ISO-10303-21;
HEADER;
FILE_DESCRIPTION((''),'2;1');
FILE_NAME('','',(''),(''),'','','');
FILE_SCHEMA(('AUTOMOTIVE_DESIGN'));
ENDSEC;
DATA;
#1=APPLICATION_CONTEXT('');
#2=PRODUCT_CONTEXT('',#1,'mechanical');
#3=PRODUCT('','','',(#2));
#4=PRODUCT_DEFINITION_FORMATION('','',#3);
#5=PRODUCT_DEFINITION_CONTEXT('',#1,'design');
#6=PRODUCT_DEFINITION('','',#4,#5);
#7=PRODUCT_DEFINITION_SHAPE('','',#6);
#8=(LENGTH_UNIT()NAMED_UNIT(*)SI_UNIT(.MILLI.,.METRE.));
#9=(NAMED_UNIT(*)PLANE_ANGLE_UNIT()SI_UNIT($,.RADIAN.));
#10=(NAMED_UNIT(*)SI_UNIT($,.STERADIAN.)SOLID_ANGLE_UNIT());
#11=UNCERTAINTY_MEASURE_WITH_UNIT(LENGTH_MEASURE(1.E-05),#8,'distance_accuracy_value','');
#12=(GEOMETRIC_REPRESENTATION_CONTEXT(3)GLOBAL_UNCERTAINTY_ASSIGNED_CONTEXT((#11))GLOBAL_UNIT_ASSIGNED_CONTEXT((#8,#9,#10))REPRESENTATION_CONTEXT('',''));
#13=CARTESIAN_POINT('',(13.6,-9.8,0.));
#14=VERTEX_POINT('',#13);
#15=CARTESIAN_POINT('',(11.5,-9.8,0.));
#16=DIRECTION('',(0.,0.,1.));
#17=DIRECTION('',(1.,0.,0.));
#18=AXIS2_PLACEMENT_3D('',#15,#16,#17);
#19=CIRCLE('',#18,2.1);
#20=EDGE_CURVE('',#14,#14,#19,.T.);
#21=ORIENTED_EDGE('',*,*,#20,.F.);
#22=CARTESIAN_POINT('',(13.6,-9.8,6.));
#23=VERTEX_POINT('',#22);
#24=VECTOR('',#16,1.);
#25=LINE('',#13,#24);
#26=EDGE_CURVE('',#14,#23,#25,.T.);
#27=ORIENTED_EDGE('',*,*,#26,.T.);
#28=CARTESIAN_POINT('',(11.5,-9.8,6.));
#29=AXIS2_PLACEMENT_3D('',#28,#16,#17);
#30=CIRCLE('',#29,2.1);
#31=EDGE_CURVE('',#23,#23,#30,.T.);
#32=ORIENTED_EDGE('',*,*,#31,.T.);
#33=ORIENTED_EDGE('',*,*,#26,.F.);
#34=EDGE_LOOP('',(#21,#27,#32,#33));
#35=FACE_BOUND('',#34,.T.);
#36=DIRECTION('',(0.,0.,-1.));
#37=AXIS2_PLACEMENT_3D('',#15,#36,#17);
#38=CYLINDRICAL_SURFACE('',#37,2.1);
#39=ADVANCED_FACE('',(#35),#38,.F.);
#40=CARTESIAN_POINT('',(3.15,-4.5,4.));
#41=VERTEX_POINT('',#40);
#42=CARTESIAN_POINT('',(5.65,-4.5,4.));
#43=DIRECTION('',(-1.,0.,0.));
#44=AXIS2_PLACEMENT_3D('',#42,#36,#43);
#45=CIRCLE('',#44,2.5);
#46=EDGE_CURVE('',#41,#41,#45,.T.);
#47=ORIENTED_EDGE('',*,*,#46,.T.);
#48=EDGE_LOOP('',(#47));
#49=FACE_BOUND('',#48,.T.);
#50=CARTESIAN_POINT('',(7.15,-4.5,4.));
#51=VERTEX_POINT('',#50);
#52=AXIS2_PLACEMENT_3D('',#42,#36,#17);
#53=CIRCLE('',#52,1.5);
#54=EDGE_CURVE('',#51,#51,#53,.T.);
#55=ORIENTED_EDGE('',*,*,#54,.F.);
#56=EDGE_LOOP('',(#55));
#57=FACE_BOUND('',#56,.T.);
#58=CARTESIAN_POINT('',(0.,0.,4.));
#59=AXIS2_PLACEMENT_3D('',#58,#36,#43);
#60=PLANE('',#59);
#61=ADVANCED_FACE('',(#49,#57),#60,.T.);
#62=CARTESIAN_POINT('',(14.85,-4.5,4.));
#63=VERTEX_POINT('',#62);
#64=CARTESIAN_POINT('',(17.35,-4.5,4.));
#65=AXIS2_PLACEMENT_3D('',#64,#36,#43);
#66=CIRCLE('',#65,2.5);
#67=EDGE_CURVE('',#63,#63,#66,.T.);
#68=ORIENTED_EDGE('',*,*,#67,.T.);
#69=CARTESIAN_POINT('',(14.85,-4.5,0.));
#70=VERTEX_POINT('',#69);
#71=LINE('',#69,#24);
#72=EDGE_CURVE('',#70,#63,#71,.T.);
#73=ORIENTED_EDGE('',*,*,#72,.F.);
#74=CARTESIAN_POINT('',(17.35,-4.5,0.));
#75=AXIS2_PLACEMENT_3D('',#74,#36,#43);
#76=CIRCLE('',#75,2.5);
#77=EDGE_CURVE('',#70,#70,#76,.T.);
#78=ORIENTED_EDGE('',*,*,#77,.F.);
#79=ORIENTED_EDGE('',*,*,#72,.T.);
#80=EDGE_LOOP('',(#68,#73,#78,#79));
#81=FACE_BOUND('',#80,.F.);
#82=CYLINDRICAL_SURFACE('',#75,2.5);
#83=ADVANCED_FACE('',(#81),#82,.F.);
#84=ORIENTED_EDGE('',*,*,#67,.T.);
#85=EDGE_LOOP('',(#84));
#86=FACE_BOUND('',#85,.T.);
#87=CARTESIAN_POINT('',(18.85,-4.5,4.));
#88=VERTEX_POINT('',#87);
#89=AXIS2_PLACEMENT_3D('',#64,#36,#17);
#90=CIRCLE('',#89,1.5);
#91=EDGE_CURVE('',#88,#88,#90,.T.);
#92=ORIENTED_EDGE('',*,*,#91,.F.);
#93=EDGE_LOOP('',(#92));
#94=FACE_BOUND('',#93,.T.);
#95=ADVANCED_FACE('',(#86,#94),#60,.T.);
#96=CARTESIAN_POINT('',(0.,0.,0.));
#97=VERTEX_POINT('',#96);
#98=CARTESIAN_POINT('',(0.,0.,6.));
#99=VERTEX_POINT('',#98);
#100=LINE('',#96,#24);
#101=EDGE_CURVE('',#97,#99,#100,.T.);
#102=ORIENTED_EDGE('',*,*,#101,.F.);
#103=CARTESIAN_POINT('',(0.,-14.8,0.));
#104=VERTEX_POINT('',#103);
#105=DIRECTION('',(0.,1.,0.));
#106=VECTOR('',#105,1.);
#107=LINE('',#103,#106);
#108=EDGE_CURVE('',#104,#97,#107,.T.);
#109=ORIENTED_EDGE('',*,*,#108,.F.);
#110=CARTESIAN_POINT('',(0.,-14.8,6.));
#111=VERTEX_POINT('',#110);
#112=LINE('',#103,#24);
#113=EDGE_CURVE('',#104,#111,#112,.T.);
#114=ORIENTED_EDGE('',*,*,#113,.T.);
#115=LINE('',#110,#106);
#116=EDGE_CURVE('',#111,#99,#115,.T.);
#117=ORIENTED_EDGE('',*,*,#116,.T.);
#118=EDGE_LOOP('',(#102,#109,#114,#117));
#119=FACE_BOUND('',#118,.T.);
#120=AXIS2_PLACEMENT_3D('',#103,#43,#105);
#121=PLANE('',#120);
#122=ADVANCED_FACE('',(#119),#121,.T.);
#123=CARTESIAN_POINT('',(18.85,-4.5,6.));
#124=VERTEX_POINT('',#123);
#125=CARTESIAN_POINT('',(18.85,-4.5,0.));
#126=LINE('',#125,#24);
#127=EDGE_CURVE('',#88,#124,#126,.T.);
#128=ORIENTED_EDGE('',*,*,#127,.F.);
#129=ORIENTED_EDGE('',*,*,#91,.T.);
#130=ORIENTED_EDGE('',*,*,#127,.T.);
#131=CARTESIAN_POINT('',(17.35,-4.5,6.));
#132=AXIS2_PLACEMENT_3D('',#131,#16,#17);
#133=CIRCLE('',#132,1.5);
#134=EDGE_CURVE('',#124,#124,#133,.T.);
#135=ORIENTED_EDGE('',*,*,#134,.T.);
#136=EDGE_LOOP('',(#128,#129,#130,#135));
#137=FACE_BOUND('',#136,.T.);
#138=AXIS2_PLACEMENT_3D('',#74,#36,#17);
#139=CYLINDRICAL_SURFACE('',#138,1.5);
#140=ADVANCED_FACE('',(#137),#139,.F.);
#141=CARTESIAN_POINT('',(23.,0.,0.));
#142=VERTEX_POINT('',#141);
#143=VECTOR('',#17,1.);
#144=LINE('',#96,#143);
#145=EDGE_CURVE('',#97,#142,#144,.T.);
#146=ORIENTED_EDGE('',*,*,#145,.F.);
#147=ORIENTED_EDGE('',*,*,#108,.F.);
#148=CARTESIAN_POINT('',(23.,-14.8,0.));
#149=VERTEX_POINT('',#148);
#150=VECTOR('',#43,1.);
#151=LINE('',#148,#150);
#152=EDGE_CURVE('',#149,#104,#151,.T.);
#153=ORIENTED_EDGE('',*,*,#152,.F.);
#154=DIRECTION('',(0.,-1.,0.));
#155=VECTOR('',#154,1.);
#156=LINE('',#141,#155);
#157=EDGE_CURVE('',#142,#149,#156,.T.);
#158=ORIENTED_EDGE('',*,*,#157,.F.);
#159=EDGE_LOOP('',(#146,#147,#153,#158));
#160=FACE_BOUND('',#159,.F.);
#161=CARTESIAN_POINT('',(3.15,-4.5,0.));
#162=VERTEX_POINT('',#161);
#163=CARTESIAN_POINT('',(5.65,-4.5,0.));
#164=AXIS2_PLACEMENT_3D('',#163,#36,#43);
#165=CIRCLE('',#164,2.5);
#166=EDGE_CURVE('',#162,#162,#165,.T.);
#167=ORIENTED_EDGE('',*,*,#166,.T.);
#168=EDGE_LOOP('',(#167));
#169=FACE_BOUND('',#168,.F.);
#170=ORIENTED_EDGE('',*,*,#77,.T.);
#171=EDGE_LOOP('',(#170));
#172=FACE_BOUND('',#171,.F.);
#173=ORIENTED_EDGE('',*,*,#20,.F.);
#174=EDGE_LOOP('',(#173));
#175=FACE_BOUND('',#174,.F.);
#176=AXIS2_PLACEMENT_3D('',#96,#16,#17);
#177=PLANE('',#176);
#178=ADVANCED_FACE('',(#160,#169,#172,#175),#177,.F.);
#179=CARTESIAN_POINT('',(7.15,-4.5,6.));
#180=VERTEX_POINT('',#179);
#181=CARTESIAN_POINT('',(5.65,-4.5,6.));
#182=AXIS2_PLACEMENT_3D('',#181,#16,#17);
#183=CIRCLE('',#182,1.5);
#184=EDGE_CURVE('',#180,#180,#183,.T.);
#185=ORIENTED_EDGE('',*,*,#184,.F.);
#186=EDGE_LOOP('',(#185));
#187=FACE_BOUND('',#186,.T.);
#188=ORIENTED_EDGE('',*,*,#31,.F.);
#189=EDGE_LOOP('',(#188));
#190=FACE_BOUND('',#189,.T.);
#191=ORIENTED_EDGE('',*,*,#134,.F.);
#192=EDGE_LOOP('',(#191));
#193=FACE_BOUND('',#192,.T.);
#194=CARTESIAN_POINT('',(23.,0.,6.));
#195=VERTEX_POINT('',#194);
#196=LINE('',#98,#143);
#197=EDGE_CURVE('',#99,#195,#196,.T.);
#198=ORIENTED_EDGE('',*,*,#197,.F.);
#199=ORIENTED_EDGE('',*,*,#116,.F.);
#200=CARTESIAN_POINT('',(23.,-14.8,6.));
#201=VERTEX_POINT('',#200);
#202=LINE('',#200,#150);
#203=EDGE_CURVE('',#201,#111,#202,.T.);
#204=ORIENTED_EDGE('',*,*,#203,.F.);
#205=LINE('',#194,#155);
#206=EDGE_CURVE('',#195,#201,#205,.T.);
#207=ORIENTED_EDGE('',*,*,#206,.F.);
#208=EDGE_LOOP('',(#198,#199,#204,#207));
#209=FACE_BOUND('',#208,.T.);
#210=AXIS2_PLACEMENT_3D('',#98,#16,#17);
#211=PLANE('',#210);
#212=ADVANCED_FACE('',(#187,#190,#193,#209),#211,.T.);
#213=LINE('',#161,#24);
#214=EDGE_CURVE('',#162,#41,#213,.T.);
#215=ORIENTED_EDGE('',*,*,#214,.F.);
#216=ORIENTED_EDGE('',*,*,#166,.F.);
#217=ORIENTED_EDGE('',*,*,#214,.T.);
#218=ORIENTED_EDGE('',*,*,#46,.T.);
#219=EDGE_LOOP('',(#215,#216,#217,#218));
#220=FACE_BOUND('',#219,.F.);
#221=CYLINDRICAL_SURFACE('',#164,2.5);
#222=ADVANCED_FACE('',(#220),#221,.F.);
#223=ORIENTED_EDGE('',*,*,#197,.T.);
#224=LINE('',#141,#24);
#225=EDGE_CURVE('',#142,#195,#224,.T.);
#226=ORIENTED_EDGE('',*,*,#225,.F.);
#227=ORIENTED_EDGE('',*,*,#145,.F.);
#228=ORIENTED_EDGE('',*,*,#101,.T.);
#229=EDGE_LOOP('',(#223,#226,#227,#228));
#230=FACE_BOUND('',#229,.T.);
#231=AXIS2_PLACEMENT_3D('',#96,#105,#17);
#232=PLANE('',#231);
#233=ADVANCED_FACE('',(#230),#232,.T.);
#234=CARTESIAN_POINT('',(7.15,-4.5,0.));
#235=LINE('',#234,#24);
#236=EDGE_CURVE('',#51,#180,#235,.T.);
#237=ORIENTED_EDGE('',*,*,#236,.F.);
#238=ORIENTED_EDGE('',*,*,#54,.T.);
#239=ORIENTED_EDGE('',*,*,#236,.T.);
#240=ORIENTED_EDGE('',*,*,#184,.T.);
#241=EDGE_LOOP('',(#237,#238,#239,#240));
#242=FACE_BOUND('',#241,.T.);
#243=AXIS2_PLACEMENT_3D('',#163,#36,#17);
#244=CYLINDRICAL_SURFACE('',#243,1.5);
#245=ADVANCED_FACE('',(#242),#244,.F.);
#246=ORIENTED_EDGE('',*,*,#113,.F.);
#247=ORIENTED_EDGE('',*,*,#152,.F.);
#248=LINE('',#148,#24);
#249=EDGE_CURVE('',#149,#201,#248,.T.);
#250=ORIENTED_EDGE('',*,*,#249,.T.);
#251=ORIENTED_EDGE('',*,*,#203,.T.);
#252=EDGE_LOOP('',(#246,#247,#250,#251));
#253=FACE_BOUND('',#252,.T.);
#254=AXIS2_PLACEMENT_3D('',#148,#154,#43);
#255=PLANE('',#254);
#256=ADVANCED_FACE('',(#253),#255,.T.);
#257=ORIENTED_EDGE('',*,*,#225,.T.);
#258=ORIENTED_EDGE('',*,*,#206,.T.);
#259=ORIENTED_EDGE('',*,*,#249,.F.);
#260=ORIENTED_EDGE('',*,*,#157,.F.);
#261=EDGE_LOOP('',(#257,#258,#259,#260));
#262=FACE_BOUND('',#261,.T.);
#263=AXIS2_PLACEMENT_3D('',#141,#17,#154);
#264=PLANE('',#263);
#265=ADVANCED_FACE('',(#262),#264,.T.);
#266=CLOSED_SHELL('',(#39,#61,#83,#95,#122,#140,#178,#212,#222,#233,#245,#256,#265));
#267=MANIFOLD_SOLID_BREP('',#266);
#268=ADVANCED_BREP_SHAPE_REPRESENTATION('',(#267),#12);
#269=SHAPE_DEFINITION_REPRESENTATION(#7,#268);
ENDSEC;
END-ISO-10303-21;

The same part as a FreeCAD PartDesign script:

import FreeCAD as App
import Part
import Sketcher


def add_polygon(sketch, points):
    """Adds a closed chain of lines whose ends are joined by coincident constraints."""
    first, n = sketch.GeometryCount, len(points)
    for a, b in zip(points, points[1:] + points[:1]):
        sketch.addGeometry(Part.LineSegment(App.Vector(*a, 0), App.Vector(*b, 0)), False)
    for i in range(n):
        sketch.addConstraint(Sketcher.Constraint("Coincident", first + i, 2, first + (i + 1) % n, 1))

doc = App.newDocument("Part")
params = doc.addObject("Spreadsheet::Sheet", "Params")
for row, (alias, value) in enumerate([
    ("sketch1_diameter", "3 mm"),
    ("sketch1_diameter2", "4.2 mm"),
    ("sketch1_width", "23 mm"),
    ("sketch1_height", "14.8 mm"),
    ("pad1_length", "6 mm"),
    ("sketch2_diameter", "5 mm"),
    ("sketch2_diameter2", "3 mm"),
    ("pocket1_length", "4 mm"),
], start=1):
    params.set(f"A{row}", alias)
    params.set(f"B{row}", "=" + value)
    params.setAlias(f"B{row}", alias)

body = doc.addObject("PartDesign::Body", "Body")

# Sketch on XY plane
sketch1 = body.newObject("Sketcher::SketchObject", "Sketch")
sketch1.AttachmentSupport = (doc.getObject("XY_Plane"), [""])
sketch1.MapMode = "FlatFace"
add_polygon(sketch1, [(23, 0), (0, 0), (0, -14.8), (23, -14.8)])  # lines 0-3
sketch1.addGeometry(Part.Circle(App.Vector(11.5, -9.8, 0), App.Vector(0, 0, 1), 2.1), False)  # 4
sketch1.addGeometry(Part.Circle(App.Vector(5.65, -4.5, 0), App.Vector(0, 0, 1), 1.5), False)  # 5
sketch1.addGeometry(Part.Circle(App.Vector(17.35, -4.5, 0), App.Vector(0, 0, 1), 1.5), False)  # 6
sketch1.addConstraint(Sketcher.Constraint("Horizontal", 0))
sketch1.addConstraint(Sketcher.Constraint("Vertical", 1))
sketch1.addConstraint(Sketcher.Constraint("Horizontal", 2))
sketch1.addConstraint(Sketcher.Constraint("Vertical", 3))
sketch1.addConstraint(Sketcher.Constraint("Coincident", 0, 2, -1, 1))
sketch1.addConstraint(Sketcher.Constraint("Equal", 5, 6))
sketch1.addConstraint(Sketcher.Constraint("Horizontal", 5, 3, 6, 3))
sketch1.addConstraint(Sketcher.Constraint("Diameter", 5, 3.0))
sketch1.addConstraint(Sketcher.Constraint("Diameter", 4, 4.2))
sketch1.addConstraint(Sketcher.Constraint("DistanceX", 0, 2, 0, 1, 23.0))
sketch1.addConstraint(Sketcher.Constraint("DistanceY", 1, 2, 1, 1, 14.8))
sketch1.addConstraint(Sketcher.Constraint("DistanceY", 1, 2, 4, 3, 5.0))
sketch1.addConstraint(Sketcher.Constraint("DistanceX", -1, 1, 4, 3, 11.5))
sketch1.addConstraint(Sketcher.Constraint("DistanceY", 5, 3, -1, 1, 4.5))
sketch1.addConstraint(Sketcher.Constraint("DistanceX", 5, 3, 6, 3, 11.7))
sketch1.addConstraint(Sketcher.Constraint("DistanceX", -1, 1, 5, 3, 5.65))
sketch1.setExpression("Constraints[11]", "Params.sketch1_diameter")
sketch1.setExpression("Constraints[12]", "Params.sketch1_diameter2")
sketch1.setExpression("Constraints[13]", "Params.sketch1_width")
sketch1.setExpression("Constraints[14]", "Params.sketch1_height")
pad1 = body.newObject("PartDesign::Pad", "Pad")
pad1.Profile = sketch1
pad1.setExpression("Length", "Params.pad1_length")

# Sketch on XY plane
sketch2 = body.newObject("Sketcher::SketchObject", "Sketch001")
sketch2.AttachmentSupport = (doc.getObject("XY_Plane"), [""])
sketch2.MapMode = "FlatFace"
sketch2.addGeometry(Part.Circle(App.Vector(17.35, -4.5, 0), App.Vector(0, 0, 1), 2.5), False)
sketch2.addGeometry(Part.Circle(App.Vector(17.35, -4.5, 0), App.Vector(0, 0, 1), 1.5), False)
sketch2.addGeometry(Part.Circle(App.Vector(5.65, -4.5, 0), App.Vector(0, 0, 1), 2.5), False)
sketch2.addGeometry(Part.Circle(App.Vector(5.65, -4.5, 0), App.Vector(0, 0, 1), 1.5), False)
sketch2.addConstraint(Sketcher.Constraint("Coincident", 1, 3, 0, 3))
sketch2.addConstraint(Sketcher.Constraint("Coincident", 3, 3, 2, 3))
sketch2.addConstraint(Sketcher.Constraint("Equal", 0, 2))
sketch2.addConstraint(Sketcher.Constraint("Equal", 1, 3))
sketch2.addConstraint(Sketcher.Constraint("Horizontal", 1, 3, 2, 3))
sketch2.addConstraint(Sketcher.Constraint("Diameter", 0, 5.0))
sketch2.addConstraint(Sketcher.Constraint("Diameter", 1, 3.0))
sketch2.addConstraint(Sketcher.Constraint("DistanceY", 0, 3, -1, 1, 4.5))
sketch2.addConstraint(Sketcher.Constraint("DistanceX", 2, 3, 0, 3, 11.7))
sketch2.addConstraint(Sketcher.Constraint("DistanceX", -1, 1, 0, 3, 17.35))
sketch2.setExpression("Constraints[5]", "Params.sketch2_diameter")
sketch2.setExpression("Constraints[6]", "Params.sketch2_diameter2")
pocket1 = body.newObject("PartDesign::Pocket", "Pocket")
pocket1.Profile = sketch2
pocket1.setExpression("Length", "Params.pocket1_length")
pocket1.Reversed = True

doc.recompute()
